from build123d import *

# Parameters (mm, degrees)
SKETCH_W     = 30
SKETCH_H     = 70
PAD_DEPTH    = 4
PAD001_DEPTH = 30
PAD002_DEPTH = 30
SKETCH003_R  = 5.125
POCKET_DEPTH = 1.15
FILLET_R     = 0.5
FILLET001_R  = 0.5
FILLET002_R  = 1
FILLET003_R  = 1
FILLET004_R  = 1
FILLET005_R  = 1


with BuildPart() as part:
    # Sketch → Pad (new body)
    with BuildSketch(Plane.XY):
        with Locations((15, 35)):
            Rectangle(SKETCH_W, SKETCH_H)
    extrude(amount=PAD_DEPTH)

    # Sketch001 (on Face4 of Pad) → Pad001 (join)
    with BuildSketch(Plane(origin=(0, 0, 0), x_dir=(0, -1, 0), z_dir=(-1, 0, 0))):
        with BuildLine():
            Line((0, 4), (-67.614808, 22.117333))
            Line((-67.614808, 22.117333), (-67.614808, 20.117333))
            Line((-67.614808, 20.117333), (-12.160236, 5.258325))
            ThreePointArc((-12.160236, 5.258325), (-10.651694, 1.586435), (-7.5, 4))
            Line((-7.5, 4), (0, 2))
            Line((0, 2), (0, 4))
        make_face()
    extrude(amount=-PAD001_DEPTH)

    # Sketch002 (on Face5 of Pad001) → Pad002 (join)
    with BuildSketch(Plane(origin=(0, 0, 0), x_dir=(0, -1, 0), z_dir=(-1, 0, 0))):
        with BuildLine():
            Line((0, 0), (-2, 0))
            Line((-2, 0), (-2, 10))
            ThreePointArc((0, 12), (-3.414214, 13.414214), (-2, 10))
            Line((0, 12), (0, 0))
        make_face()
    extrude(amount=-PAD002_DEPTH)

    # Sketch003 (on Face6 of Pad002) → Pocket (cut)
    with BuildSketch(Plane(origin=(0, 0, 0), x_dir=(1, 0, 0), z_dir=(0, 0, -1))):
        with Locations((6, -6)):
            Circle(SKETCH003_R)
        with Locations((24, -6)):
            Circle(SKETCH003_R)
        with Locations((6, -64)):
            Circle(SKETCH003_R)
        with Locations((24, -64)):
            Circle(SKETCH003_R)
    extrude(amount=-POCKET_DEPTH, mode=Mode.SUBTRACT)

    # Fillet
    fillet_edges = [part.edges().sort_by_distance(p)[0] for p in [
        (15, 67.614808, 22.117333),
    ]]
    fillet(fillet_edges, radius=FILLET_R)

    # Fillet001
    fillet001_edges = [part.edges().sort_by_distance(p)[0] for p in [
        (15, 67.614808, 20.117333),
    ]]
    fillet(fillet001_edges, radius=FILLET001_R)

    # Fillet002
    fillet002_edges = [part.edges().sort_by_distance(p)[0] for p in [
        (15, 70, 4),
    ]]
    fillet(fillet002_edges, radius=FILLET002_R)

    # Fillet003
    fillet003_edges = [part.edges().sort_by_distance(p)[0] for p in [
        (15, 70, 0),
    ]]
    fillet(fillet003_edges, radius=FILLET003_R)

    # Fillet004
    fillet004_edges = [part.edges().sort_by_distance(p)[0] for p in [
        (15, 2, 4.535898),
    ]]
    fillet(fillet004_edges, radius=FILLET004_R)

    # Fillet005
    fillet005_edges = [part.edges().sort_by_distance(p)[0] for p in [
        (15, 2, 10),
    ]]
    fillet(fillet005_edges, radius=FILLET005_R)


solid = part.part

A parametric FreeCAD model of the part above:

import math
import FreeCAD as App
import Part
import Sketcher
from FreeCAD import Vector
Q = App.Units.Quantity


def edges_at(feature, points):
    """Names of the edges that pass closest to the given points."""
    edges = feature.Shape.Edges
    near = lambda p: min(range(len(edges)), key=lambda i: edges[i].distToShape(Part.Vertex(*p))[0])
    return sorted({f"Edge{near(p) + 1}" for p in points})


def add_polygon(sketch, points):
    """Adds a closed chain of lines whose ends are joined by coincident constraints."""
    first, n = sketch.GeometryCount, len(points)
    for a, b in zip(points, points[1:] + points[:1]):
        sketch.addGeometry(Part.LineSegment(App.Vector(*a, 0), App.Vector(*b, 0)), False)
    for i in range(n):
        sketch.addConstraint(Sketcher.Constraint("Coincident", first + i, 2, first + (i + 1) % n, 1))

doc = App.newDocument("Part")
body = doc.addObject("PartDesign::Body", "Body")

# Sketch on XY plane
sketch1 = doc.addObject("Sketcher::SketchObject", "Sketch")
body.addObject(sketch1)
sketch1.AttachmentSupport = (doc.XY_Plane, [""])
sketch1.MapMode = "FlatFace"
add_polygon(sketch1, [(0, 70), (0, 0), (30, 0), (30, 70)])  # lines 0-3
sketch1.addConstraint(Sketcher.Constraint("Vertical", 0))
sketch1.addConstraint(Sketcher.Constraint("Horizontal", 1))
sketch1.addConstraint(Sketcher.Constraint("Vertical", 2))
sketch1.addConstraint(Sketcher.Constraint("Horizontal", 3))
sketch1.addConstraint(Sketcher.Constraint("Coincident", 0, 2, -1, 1))
sketch1.addConstraint(Sketcher.Constraint("DistanceX", 1, 1, 1, 2, 30.0))
sketch1.addConstraint(Sketcher.Constraint("DistanceY", 0, 2, 0, 1, 70.0))
pad1 = doc.addObject("PartDesign::Pad", "Pad")
body.addObject(pad1)
pad1.Profile = sketch1
pad1.Length = 4

# Sketch on YZ plane
sketch2 = doc.addObject("Sketcher::SketchObject", "Sketch001")
body.addObject(sketch2)
sketch2.AttachmentSupport = (doc.YZ_Plane, [""])
sketch2.MapMode = "FlatFace"
sketch2.addGeometry(Part.LineSegment(Vector(0, 4, 0), Vector(67.6, 22.1, 0)), False)
sketch2.addGeometry(Part.LineSegment(Vector(67.6, 22.1, 0), Vector(67.6, 20.1, 0)), False)
sketch2.addGeometry(Part.LineSegment(Vector(67.6, 20.1, 0), Vector(12.2, 5.3, 0)), False)
sketch2.addGeometry(Part.ArcOfCircle(Part.Circle(Vector(10, 4, 0), Vector(0, 0, 1), 2.5), math.radians(180), math.radians(390)), False)
sketch2.addGeometry(Part.LineSegment(Vector(7.5, 4, 0), Vector(0, 2, 0)), False)
sketch2.addGeometry(Part.LineSegment(Vector(0, 2, 0), Vector(0, 4, 0)), False)
sketch2.addConstraint(Sketcher.Constraint("Coincident", 0, 2, 1, 1))
sketch2.addConstraint(Sketcher.Constraint("Coincident", 1, 2, 2, 1))
sketch2.addConstraint(Sketcher.Constraint("Coincident", 2, 2, 3, 2))
sketch2.addConstraint(Sketcher.Constraint("Coincident", 3, 1, 4, 1))
sketch2.addConstraint(Sketcher.Constraint("Coincident", 4, 2, 5, 1))
sketch2.addConstraint(Sketcher.Constraint("Coincident", 5, 2, 0, 1))
sketch2.addConstraint(Sketcher.Constraint("Vertical", 1))
sketch2.addConstraint(Sketcher.Constraint("Vertical", 5))
sketch2.addConstraint(Sketcher.Constraint("PointOnObject", 4, 2, -2))
sketch2.addConstraint(Sketcher.Constraint("Parallel", 0, 2))
sketch2.addConstraint(Sketcher.Constraint("Horizontal", 3, 1, 5, 2))
sketch2.addConstraint(Sketcher.Constraint("Equal", 1, 5))
sketch2.addConstraint(Sketcher.Constraint("Radius", 3, 2.5))
sketch2.addConstraint(Sketcher.Constraint("DistanceY", 1, 2, 1, 1, 2.0))
sketch2.addConstraint(Sketcher.Constraint("Angle", 0, Q("15 deg")))
sketch2.addConstraint(Sketcher.Constraint("Distance", 0, 70.0))
sketch2.addConstraint(Sketcher.Constraint("DistanceX", -1, 1, 3, 3, 10.0))
sketch2.addConstraint(Sketcher.Constraint("DistanceY", -1, 1, 3, 3, 4.0))
sketch2.addConstraint(Sketcher.Constraint("DistanceY", -1, 1, 3, 1, 4.0))
pad2 = doc.addObject("PartDesign::Pad", "Pad001")
body.addObject(pad2)
pad2.Profile = sketch2
pad2.Length = 30

# Sketch on YZ plane
sketch3 = doc.addObject("Sketcher::SketchObject", "Sketch002")
body.addObject(sketch3)
sketch3.AttachmentSupport = (doc.YZ_Plane, [""])
sketch3.MapMode = "FlatFace"
sketch3.addGeometry(Part.LineSegment(Vector(2, 0, 0), Vector(0, 0, 0)), False)
sketch3.addGeometry(Part.LineSegment(Vector(0, 0, 0), Vector(0, 12, 0)), False)
sketch3.addGeometry(Part.ArcOfCircle(Part.Circle(Vector(2, 12, 0), Vector(0, 0, 1), 2), math.radians(-90), math.radians(180)), False)
sketch3.addGeometry(Part.LineSegment(Vector(2, 10, 0), Vector(2, 0, 0)), False)
sketch3.addConstraint(Sketcher.Constraint("Coincident", 0, 2, 1, 1))
sketch3.addConstraint(Sketcher.Constraint("Tangent", 1, 2, 2, 2))
sketch3.addConstraint(Sketcher.Constraint("Coincident", 2, 1, 3, 1))
sketch3.addConstraint(Sketcher.Constraint("Coincident", 3, 2, 0, 1))
sketch3.addConstraint(Sketcher.Constraint("Horizontal", 0))
sketch3.addConstraint(Sketcher.Constraint("Vertical", 1))
sketch3.addConstraint(Sketcher.Constraint("Vertical", 3))
sketch3.addConstraint(Sketcher.Constraint("Coincident", 0, 2, -1, 1))
sketch3.addConstraint(Sketcher.Constraint("Radius", 2, 2.0))
sketch3.addConstraint(Sketcher.Constraint("DistanceX", 0, 2, 0, 1, 2.0))
sketch3.addConstraint(Sketcher.Constraint("DistanceY", 1, 1, 1, 2, 12.0))
pad3 = doc.addObject("PartDesign::Pad", "Pad002")
body.addObject(pad3)
pad3.Profile = sketch3
pad3.Length = 30

# Sketch on XY plane
sketch4 = doc.addObject("Sketcher::SketchObject", "Sketch003")
body.addObject(sketch4)
sketch4.AttachmentSupport = (doc.XY_Plane, [""])
sketch4.MapMode = "FlatFace"
sketch4.addGeometry(Part.Circle(Vector(6, 6, 0), Vector(0, 0, 1), 5), False)
sketch4.addGeometry(Part.Circle(Vector(24, 6, 0), Vector(0, 0, 1), 5), False)
sketch4.addGeometry(Part.Circle(Vector(6, 64, 0), Vector(0, 0, 1), 5), False)
sketch4.addGeometry(Part.Circle(Vector(24, 64, 0), Vector(0, 0, 1), 5), False)
sketch4.addConstraint(Sketcher.Constraint("Equal", 0, 1))
sketch4.addConstraint(Sketcher.Constraint("Equal", 1, 2))
sketch4.addConstraint(Sketcher.Constraint("Equal", 2, 3))
sketch4.addConstraint(Sketcher.Constraint("Horizontal", 0, 3, 1, 3))
sketch4.addConstraint(Sketcher.Constraint("Horizontal", 2, 3, 3, 3))
sketch4.addConstraint(Sketcher.Constraint("Vertical", 0, 3, 2, 3))
sketch4.addConstraint(Sketcher.Constraint("Vertical", 1, 3, 3, 3))
sketch4.addConstraint(Sketcher.Constraint("Diameter", 0, 10.25))
sketch4.addConstraint(Sketcher.Constraint("DistanceX", -1, 1, 0, 3, 6.0))
sketch4.addConstraint(Sketcher.Constraint("DistanceY", -1, 1, 0, 3, 6.0))
sketch4.addConstraint(Sketcher.Constraint("DistanceX", -1, 1, 1, 3, 24.0))
sketch4.addConstraint(Sketcher.Constraint("DistanceY", -1, 1, 2, 3, 64.0))
pocket1 = doc.addObject("PartDesign::Pocket", "Pocket")
body.addObject(pocket1)
pocket1.Profile = sketch4
pocket1.Length = 1.15
pocket1.Reversed = True
doc.recompute()

fillet = doc.addObject("PartDesign::Fillet", "Fillet")
body.addObject(fillet)
fillet.Base = (pocket1, edges_at(pocket1, [(15, 67.615, 22.117)]))
fillet.Radius = 0.5
doc.recompute()

fillet2 = doc.addObject("PartDesign::Fillet", "Fillet001")
body.addObject(fillet2)
fillet2.Base = (fillet, edges_at(fillet, [(15, 67.615, 20.117)]))
fillet2.Radius = 0.5
doc.recompute()

fillet3 = doc.addObject("PartDesign::Fillet", "Fillet002")
body.addObject(fillet3)
fillet3.Base = (fillet2, edges_at(fillet2, [(15, 70, 4)]))
fillet3.Radius = 1
doc.recompute()

fillet4 = doc.addObject("PartDesign::Fillet", "Fillet003")
body.addObject(fillet4)
fillet4.Base = (fillet3, edges_at(fillet3, [(15, 70, 0)]))
fillet4.Radius = 1
doc.recompute()

fillet5 = doc.addObject("PartDesign::Fillet", "Fillet004")
body.addObject(fillet5)
fillet5.Base = (fillet4, edges_at(fillet4, [(15, 2, 4.536)]))
fillet5.Radius = 1
doc.recompute()

fillet6 = doc.addObject("PartDesign::Fillet", "Fillet005")
body.addObject(fillet6)
fillet6.Base = (fillet5, edges_at(fillet5, [(15, 2, 10)]))
fillet6.Radius = 1

doc.recompute()
